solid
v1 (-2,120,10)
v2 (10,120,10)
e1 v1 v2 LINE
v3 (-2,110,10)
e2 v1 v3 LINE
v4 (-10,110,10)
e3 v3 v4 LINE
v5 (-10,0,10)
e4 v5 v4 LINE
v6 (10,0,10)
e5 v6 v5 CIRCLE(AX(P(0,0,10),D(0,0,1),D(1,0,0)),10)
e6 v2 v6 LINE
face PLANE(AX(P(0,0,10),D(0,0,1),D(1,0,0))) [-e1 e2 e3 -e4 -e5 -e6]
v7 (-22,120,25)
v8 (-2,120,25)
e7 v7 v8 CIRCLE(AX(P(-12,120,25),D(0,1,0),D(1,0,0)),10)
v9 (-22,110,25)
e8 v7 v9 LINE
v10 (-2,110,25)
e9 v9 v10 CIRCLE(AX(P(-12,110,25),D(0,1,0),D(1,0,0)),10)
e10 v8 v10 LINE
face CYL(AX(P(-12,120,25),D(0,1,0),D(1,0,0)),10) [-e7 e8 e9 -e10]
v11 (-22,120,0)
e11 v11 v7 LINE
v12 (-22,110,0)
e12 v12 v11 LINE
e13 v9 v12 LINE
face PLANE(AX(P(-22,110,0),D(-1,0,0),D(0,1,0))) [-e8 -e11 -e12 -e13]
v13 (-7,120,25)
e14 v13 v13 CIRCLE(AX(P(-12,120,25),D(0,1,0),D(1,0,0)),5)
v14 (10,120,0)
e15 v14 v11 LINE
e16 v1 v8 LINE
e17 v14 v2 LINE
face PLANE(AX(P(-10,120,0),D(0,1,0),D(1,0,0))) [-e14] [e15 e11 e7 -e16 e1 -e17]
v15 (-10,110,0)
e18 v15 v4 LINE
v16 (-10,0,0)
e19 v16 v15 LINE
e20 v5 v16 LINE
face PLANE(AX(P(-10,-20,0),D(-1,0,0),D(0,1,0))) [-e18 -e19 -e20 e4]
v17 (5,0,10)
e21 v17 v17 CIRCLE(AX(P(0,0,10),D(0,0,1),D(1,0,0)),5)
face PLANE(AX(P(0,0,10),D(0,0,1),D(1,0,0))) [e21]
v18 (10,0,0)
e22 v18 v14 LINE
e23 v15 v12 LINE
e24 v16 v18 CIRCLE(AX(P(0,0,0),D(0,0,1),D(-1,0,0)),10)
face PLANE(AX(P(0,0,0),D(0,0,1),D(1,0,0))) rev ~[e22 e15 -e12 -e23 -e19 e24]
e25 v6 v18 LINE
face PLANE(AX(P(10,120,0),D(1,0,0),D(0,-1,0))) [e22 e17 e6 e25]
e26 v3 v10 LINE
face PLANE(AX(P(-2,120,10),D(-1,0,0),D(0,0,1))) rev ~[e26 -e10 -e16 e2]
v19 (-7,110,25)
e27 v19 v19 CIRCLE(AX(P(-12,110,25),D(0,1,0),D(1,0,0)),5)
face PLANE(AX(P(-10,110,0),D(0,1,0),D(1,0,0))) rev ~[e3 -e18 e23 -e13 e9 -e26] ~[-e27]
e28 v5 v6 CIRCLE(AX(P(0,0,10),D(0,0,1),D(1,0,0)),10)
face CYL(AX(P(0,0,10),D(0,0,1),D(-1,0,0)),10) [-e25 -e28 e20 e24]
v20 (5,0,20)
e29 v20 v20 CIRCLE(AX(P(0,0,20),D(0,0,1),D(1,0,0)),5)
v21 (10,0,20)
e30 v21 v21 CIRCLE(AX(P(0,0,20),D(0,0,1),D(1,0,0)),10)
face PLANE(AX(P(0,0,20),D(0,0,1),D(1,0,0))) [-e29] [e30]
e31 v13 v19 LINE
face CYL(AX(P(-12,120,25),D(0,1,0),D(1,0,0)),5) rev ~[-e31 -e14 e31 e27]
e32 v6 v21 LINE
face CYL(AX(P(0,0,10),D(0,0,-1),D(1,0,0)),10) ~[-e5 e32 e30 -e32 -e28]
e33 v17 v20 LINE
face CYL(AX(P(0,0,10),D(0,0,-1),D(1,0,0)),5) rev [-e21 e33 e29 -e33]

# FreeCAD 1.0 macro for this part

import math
import FreeCAD as App
import Part
import Sketcher

V = App.Vector

doc = App.newDocument("Part")
params = doc.addObject("Spreadsheet::Sheet", "Params")
for row, (alias, value) in enumerate([
    ("sketch1_width", "12 mm"),
    ("sketch1_width2", "20 mm"),
    ("sketch1_height", "10 mm"),
    ("sketch1_height2", "140 mm"),
    ("pad1_length", "10 mm"),
    ("sketch2_diameter", "20 mm"),
    ("sketch2_diameter2", "10 mm"),
    ("pad2_length", "10 mm"),
    ("sketch3_radius", "10 mm"),
    ("sketch3_height", "15 mm"),
    ("pad3_length", "10 mm"),
    ("sketch4_diameter", "10 mm"),
    ("pocket1_length", "10 mm"),
    ("sketch5_radius", "10 mm"),
], start=1):
    params.set(f"A{row}", alias)
    params.set(f"B{row}", "=" + value)
    params.setAlias(f"B{row}", alias)

body = doc.addObject("PartDesign::Body", "Body")

sketch1 = body.newObject("Sketcher::SketchObject", "Sketch")
sketch1.AttachmentSupport = (doc.getObject("XY_Plane"), [""])
sketch1.MapMode = "FlatFace"
sketch1.addGeometry([
    Part.LineSegment(V(10, 120, 0), V(-22, 120, 0)),
    Part.LineSegment(V(-22, 120, 0), V(-22, 110, 0)),
    Part.LineSegment(V(-22, 110, 0), V(-10, 110, 0)),
    Part.LineSegment(V(-10, 110, 0), V(-10, -20, 0)),
    Part.LineSegment(V(-10, -20, 0), V(10, -20, 0)),
    Part.LineSegment(V(10, -20, 0), V(10, 120, 0)),
], False)
sketch1.addConstraint([
    Sketcher.Constraint("Coincident", 0, 2, 1, 1),
    Sketcher.Constraint("Coincident", 1, 2, 2, 1),
    Sketcher.Constraint("Coincident", 2, 2, 3, 1),
    Sketcher.Constraint("Coincident", 3, 2, 4, 1),
    Sketcher.Constraint("Coincident", 4, 2, 5, 1),
    Sketcher.Constraint("Coincident", 5, 2, 0, 1),
    Sketcher.Constraint("Horizontal", 0),
    Sketcher.Constraint("Vertical", 1),
    Sketcher.Constraint("Horizontal", 2),
    Sketcher.Constraint("Vertical", 3),
    Sketcher.Constraint("Horizontal", 4),
    Sketcher.Constraint("Vertical", 5),
    Sketcher.Constraint("DistanceX", 2, 1, 2, 2, 12.0),
    Sketcher.Constraint("DistanceX", 4, 1, 4, 2, 20.0),
    Sketcher.Constraint("DistanceY", 1, 2, 1, 1, 10.0),
    Sketcher.Constraint("DistanceY", 5, 1, 5, 2, 140.0),
    Sketcher.Constraint("DistanceX", 2, 2, -1, 1, 10.0),
    Sketcher.Constraint("DistanceY", 3, 2, -1, 1, 20.0),
])
sketch1.setExpression("Constraints[12]", "Params.sketch1_width")
sketch1.setExpression("Constraints[13]", "Params.sketch1_width2")
sketch1.setExpression("Constraints[14]", "Params.sketch1_height")
sketch1.setExpression("Constraints[15]", "Params.sketch1_height2")
pad1 = body.newObject("PartDesign::Pad", "Pad")
pad1.Profile = sketch1
pad1.setExpression("Length", "Params.pad1_length")

sketch2 = body.newObject("Sketcher::SketchObject", "Sketch001")
sketch2.AttachmentSupport = (doc.getObject("XY_Plane"), [""])
sketch2.MapMode = "FlatFace"
sketch2.AttachmentOffset = App.Placement(V(0, 0, 10), App.Rotation())
sketch2.addGeometry([
    Part.Circle(V(0, 0, 0), V(0, 0, 1), 10),
    Part.Circle(V(0, 0, 0), V(0, 0, 1), 5),
], False)
sketch2.addConstraint([
    Sketcher.Constraint("Coincident", 0, 3, -1, 1),
    Sketcher.Constraint("Coincident", 1, 3, -1, 1),
    Sketcher.Constraint("Diameter", 0, 20.0),
    Sketcher.Constraint("Diameter", 1, 10.0),
])
sketch2.setExpression("Constraints[2]", "Params.sketch2_diameter")
sketch2.setExpression("Constraints[3]", "Params.sketch2_diameter2")
pad2 = body.newObject("PartDesign::Pad", "Pad001")
pad2.Profile = sketch2
pad2.setExpression("Length", "Params.pad2_length")

sketch3 = body.newObject("Sketcher::SketchObject", "Sketch002")
sketch3.AttachmentSupport = (doc.getObject("XZ_Plane"), [""])
sketch3.MapMode = "FlatFace"
sketch3.AttachmentOffset = App.Placement(V(0, 0, -120), App.Rotation())
sketch3.addGeometry([
    Part.ArcOfCircle(Part.Circle(V(-12, 25, 0), V(0, 0, 1), 10), math.radians(0), math.radians(180)),
    Part.LineSegment(V(-2, 25, 0), V(-2, 10, 0)),
    Part.LineSegment(V(-2, 10, 0), V(-22, 10, 0)),
    Part.LineSegment(V(-22, 10, 0), V(-22, 25, 0)),
], False)
sketch3.addConstraint([
    Sketcher.Constraint("Tangent", 0, 1, 1, 1),
    Sketcher.Constraint("Coincident", 1, 2, 2, 1),
    Sketcher.Constraint("Coincident", 2, 2, 3, 1),
    Sketcher.Constraint("Tangent", 3, 2, 0, 2),
    Sketcher.Constraint("Vertical", 1),
    Sketcher.Constraint("Horizontal", 2),
    Sketcher.Constraint("Vertical", 3),
    Sketcher.Constraint("Radius", 0, 10.0),
    Sketcher.Constraint("DistanceY", -1, 1, 0, 3, 25.0),
    Sketcher.Constraint("DistanceY", 1, 2, 1, 1, 15.0),
    Sketcher.Constraint("DistanceX", 0, 3, -1, 1, 12.0),
])
sketch3.setExpression("Constraints[7]", "Params.sketch3_radius")
sketch3.setExpression("Constraints[9]", "Params.sketch3_height")
pad3 = body.newObject("PartDesign::Pad", "Pad002")
pad3.Profile = sketch3
pad3.setExpression("Length", "Params.pad3_length")

sketch4 = body.newObject("Sketcher::SketchObject", "Sketch003")
sketch4.AttachmentSupport = (doc.getObject("XZ_Plane"), [""])
sketch4.MapMode = "FlatFace"
sketch4.AttachmentOffset = App.Placement(V(0, 0, -120), App.Rotation())
sketch4.addGeometry(Part.Circle(V(-12, 25, 0), V(0, 0, 1), 5), False)
sketch4.addConstraint([
    Sketcher.Constraint("Diameter", 0, 10.0),
    Sketcher.Constraint("DistanceX", 0, 3, -1, 1, 12.0),
    Sketcher.Constraint("DistanceY", -1, 1, 0, 3, 25.0),
])
sketch4.setExpression("Constraints[0]", "Params.sketch4_diameter")
pocket1 = body.newObject("PartDesign::Pocket", "Pocket")
pocket1.Profile = sketch4
pocket1.setExpression("Length", "Params.pocket1_length")
pocket1.Reversed = True

sketch5 = body.newObject("Sketcher::SketchObject", "Sketch004")
sketch5.AttachmentSupport = (doc.getObject("XY_Plane"), [""])
sketch5.MapMode = "FlatFace"
sketch5.AttachmentOffset = App.Placement(V(0, 0, 10), App.Rotation())
sketch5.addGeometry([
    Part.ArcOfCircle(Part.Circle(V(0, 0, 0), V(0, 0, 1), 10), math.radians(180), math.radians(360)),
    Part.LineSegment(V(-10, 0, 0), V(-10, -20, 0)),
    Part.LineSegment(V(-10, -20, 0), V(10, -20, 0)),
    Part.LineSegment(V(10, -20, 0), V(10, 0, 0)),
], False)
sketch5.addConstraint([
    Sketcher.Constraint("Tangent", 0, 1, 1, 1),
    Sketcher.Constraint("Coincident", 1, 2, 2, 1),
    Sketcher.Constraint("Coincident", 2, 2, 3, 1),
    Sketcher.Constraint("Tangent", 3, 2, 0, 2),
    Sketcher.Constraint("Vertical", 1),
    Sketcher.Constraint("Horizontal", 2),
    Sketcher.Constraint("Vertical", 3),
    Sketcher.Constraint("Coincident", 0, 3, -1, 1),
    Sketcher.Constraint("Equal", 2, 1),
    Sketcher.Constraint("Radius", 0, 10.0),
])
sketch5.setExpression("Constraints[9]", "Params.sketch5_radius")
pocket2 = body.newObject("PartDesign::Pocket", "Pocket001")
pocket2.Profile = sketch5
pocket2.Type = "ThroughAll"

doc.recompute()
